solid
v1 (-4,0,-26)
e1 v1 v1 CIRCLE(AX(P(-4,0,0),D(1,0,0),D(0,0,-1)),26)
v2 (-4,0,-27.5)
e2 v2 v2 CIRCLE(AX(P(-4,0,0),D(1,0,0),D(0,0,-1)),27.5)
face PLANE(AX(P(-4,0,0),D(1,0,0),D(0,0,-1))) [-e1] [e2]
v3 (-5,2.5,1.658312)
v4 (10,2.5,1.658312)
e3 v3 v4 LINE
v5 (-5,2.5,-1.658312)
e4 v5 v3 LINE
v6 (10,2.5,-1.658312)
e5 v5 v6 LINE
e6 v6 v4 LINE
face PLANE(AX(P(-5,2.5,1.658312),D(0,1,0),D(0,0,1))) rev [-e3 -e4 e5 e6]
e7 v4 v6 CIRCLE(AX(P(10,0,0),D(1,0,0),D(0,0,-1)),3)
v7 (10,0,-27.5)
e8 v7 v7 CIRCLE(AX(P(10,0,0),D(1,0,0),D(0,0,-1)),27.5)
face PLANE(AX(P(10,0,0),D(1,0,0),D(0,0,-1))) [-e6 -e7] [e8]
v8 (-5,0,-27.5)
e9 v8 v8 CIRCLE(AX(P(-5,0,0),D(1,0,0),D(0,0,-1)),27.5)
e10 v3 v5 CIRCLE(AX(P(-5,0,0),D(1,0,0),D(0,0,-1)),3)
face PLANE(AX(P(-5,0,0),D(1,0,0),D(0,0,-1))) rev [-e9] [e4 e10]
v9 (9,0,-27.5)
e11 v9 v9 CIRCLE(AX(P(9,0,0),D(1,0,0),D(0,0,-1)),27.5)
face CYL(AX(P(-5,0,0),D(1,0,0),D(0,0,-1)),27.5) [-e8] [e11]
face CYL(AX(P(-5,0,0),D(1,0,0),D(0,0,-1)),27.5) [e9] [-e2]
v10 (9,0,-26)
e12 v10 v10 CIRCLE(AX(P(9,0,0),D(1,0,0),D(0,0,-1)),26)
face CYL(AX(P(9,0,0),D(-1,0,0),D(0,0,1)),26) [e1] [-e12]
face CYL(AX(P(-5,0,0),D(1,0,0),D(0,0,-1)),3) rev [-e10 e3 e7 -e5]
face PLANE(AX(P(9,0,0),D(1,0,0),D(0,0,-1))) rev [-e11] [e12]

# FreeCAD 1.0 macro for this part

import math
import FreeCAD as App
import Part
import Sketcher
from FreeCAD import Vector
Q = App.Units.Quantity

doc = App.newDocument("Part")
body = doc.addObject("PartDesign::Body", "Body")

sketch1 = body.newObject("Sketcher::SketchObject", "Sketch")
sketch1.AttachmentSupport = (doc.getObject("YZ_Plane"), [""])
sketch1.MapMode = "FlatFace"
sketch1.addGeometry([
    Part.Circle(Vector(0, 0, 0), Vector(0, 0, 1), 27.5),
    Part.ArcOfCircle(Part.Circle(Vector(0, 0, 0), Vector(0, 0, 1), 3), math.radians(34), math.radians(326)),
    Part.LineSegment(Vector(2.5, 1.7, 0), Vector(2.5, -1.7, 0)),
], False)
sketch1.addConstraint([
    Sketcher.Constraint("Coincident", 1, 1, 2, 1),
    Sketcher.Constraint("Coincident", 2, 2, 1, 2),
    Sketcher.Constraint("Vertical", 2),
    Sketcher.Constraint("Coincident", 0, 3, -1, 1),
    Sketcher.Constraint("Coincident", 1, 3, -1, 1),
    Sketcher.Constraint("Diameter", 0, Q("55 mm")),
    Sketcher.Constraint("Radius", 1, Q("3 mm")),
    Sketcher.Constraint("DistanceX", -1, 1, 1, 1, Q("2.5 mm")),
])
pad1 = body.newObject("PartDesign::Pad", "Pad")
pad1.Profile = sketch1
pad1.Type = "TwoLengths"
pad1.Length = 10
pad1.Length2 = 5

sketch2 = body.newObject("Sketcher::SketchObject", "Sketch001")
sketch2.AttachmentSupport = (doc.getObject("YZ_Plane"), [""])
sketch2.MapMode = "FlatFace"
sketch2.addGeometry([
    Part.Circle(Vector(0, 0, 0), Vector(0, 0, 1), 28),
    Part.Circle(Vector(0, 0, 0), Vector(0, 0, 1), 26),
], False)
sketch2.addConstraint([
    Sketcher.Constraint("Coincident", 0, 3, -1, 1),
    Sketcher.Constraint("Coincident", 1, 3, -1, 1),
    Sketcher.Constraint("Diameter", 0, Q("55 mm")),
    Sketcher.Constraint("Diameter", 1, Q("52 mm")),
])
pocket1 = body.newObject("PartDesign::Pocket", "Pocket")
pocket1.Profile = sketch2
pocket1.Type = "TwoLengths"
pocket1.Length = 9
pocket1.Length2 = 4
pocket1.Reversed = True

doc.recompute()
